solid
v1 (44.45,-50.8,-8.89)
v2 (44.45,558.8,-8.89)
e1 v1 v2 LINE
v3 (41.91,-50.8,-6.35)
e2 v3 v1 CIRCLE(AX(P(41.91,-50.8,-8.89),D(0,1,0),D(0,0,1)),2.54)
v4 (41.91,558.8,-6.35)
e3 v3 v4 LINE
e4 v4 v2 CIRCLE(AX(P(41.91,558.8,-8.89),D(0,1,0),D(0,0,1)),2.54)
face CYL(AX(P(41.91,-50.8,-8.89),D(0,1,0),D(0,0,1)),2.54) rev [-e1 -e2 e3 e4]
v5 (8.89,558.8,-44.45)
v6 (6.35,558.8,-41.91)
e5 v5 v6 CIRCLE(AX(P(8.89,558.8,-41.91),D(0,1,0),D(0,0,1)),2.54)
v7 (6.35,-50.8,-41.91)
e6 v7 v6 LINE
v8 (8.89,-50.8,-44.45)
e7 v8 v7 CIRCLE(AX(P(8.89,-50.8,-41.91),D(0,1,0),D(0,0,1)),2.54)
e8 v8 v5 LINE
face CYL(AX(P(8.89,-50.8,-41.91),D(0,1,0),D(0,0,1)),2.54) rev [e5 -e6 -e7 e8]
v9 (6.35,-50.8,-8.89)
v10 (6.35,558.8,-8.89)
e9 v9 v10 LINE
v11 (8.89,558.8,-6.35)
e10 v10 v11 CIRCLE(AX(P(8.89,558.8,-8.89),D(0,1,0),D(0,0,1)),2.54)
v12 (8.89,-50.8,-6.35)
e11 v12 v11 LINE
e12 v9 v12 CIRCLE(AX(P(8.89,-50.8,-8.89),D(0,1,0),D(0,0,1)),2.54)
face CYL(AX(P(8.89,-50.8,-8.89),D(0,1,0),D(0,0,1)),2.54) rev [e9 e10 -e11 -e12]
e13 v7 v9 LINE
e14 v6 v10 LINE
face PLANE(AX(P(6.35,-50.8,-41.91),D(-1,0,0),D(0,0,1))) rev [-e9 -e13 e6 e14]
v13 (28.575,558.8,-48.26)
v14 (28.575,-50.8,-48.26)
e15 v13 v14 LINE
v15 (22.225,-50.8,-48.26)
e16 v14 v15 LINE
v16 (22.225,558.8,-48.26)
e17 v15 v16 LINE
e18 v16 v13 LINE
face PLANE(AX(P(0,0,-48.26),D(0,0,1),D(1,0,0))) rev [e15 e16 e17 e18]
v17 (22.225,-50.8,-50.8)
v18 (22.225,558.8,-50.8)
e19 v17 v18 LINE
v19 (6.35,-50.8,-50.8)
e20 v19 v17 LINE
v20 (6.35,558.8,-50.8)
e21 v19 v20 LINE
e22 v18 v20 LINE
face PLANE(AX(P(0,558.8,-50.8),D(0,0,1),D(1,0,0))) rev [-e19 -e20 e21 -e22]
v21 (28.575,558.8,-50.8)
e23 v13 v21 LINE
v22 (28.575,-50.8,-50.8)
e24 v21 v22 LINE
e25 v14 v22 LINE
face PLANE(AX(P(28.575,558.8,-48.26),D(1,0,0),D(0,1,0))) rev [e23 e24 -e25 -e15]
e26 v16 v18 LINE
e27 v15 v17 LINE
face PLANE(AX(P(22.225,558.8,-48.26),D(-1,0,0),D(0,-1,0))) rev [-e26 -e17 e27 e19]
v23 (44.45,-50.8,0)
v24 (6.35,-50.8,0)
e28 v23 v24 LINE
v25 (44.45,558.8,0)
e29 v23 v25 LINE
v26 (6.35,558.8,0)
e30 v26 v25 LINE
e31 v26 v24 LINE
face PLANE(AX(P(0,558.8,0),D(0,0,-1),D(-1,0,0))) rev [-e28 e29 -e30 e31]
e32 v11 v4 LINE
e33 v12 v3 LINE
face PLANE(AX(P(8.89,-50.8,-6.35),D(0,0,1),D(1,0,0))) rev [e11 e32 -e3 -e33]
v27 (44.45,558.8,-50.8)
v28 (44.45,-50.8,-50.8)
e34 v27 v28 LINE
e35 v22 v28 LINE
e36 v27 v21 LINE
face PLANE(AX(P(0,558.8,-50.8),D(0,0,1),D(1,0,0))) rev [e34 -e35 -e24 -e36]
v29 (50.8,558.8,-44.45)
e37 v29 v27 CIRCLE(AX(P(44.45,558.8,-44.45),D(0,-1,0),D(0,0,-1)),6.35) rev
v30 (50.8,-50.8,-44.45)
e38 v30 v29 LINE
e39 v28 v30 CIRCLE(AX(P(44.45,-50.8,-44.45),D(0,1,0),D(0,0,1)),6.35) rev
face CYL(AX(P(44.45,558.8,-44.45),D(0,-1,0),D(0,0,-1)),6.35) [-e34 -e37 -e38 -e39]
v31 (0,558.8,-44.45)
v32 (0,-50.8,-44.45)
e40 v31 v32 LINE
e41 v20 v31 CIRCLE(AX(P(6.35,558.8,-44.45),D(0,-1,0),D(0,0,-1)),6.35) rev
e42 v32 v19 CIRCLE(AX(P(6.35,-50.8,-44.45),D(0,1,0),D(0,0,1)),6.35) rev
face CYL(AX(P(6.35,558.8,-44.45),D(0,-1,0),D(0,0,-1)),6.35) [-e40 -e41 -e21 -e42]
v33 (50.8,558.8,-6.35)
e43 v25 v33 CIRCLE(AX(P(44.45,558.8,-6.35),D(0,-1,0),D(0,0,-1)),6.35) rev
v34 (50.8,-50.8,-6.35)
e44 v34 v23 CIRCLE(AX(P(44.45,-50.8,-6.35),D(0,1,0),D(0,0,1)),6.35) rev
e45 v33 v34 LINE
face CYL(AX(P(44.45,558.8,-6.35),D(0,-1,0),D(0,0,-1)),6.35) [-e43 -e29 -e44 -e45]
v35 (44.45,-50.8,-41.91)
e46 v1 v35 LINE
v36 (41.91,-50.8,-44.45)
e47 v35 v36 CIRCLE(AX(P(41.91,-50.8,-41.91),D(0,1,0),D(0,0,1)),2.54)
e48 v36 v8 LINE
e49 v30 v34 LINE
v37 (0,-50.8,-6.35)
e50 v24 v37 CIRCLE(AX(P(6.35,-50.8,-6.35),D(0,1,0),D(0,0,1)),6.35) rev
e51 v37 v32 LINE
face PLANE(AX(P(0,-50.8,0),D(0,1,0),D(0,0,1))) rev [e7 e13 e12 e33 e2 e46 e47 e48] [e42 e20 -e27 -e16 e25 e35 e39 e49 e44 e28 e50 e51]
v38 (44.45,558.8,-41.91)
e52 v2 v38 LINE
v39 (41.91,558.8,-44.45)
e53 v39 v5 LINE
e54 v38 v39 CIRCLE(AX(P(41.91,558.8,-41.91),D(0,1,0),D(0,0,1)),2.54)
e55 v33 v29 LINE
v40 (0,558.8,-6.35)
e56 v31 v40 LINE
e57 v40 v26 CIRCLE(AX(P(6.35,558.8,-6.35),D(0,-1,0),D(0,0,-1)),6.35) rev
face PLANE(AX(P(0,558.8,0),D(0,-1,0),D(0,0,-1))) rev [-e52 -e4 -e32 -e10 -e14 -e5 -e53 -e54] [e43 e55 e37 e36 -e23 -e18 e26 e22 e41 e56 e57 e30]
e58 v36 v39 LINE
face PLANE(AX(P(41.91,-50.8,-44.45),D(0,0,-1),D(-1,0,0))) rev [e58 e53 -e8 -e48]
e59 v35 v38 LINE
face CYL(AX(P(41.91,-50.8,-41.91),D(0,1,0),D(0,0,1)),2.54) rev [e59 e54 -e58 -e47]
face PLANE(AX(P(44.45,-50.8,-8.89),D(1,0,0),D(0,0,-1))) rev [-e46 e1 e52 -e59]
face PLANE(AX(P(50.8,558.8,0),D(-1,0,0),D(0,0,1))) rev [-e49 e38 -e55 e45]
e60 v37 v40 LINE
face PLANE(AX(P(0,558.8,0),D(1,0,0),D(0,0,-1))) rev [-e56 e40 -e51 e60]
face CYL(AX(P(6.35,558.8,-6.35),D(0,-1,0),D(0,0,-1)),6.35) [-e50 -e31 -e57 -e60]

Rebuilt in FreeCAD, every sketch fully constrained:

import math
import FreeCAD as App
import Part
import Sketcher
Q = App.Units.Quantity


def edges_at(feature, points):
    """Names of the edges that pass closest to the given points."""
    edges = feature.Shape.Edges
    near = lambda p: min(range(len(edges)), key=lambda i: edges[i].distToShape(Part.Vertex(*p))[0])
    return sorted({f"Edge{near(p) + 1}" for p in points})


def add_polygon(sketch, points):
    """Adds a closed chain of lines whose ends are joined by coincident constraints."""
    first, n = sketch.GeometryCount, len(points)
    for a, b in zip(points, points[1:] + points[:1]):
        sketch.addGeometry(Part.LineSegment(App.Vector(*a, 0), App.Vector(*b, 0)), False)
    for i in range(n):
        sketch.addConstraint(Sketcher.Constraint("Coincident", first + i, 2, first + (i + 1) % n, 1))

doc = App.newDocument("Part")
body = doc.addObject("PartDesign::Body", "Body")

sketch1 = body.newObject("Sketcher::SketchObject", "Sketch")
sketch1.AttachmentSupport = (doc.getObject("XZ_Plane"), [""])
sketch1.MapMode = "FlatFace"
add_polygon(sketch1, [(0, -50.8), (0, 0), (50.8, 0), (50.8, -50.8)])
sketch1.addConstraint([
    Sketcher.Constraint("Vertical", 0),
    Sketcher.Constraint("Horizontal", 1),
    Sketcher.Constraint("Vertical", 2),
    Sketcher.Constraint("Horizontal", 3),
    Sketcher.Constraint("Coincident", 0, 2, -1, 1),
    Sketcher.Constraint("Equal", 3, 0),
    Sketcher.Constraint("DistanceX", 1, 1, 1, 2, Q("2 in")),
])
pad1 = body.newObject("PartDesign::Pad", "Pad")
pad1.Profile = sketch1
pad1.Length = Q("22 in")
pad1.Reversed = True

sketch2 = body.newObject("Sketcher::SketchObject", "Sketch001")
sketch2.AttachmentSupport = (doc.getObject("XZ_Plane"), [""])
sketch2.MapMode = "FlatFace"
add_polygon(sketch2, [(0, 0), (0, -50.8), (50.8, -50.8), (50.8, 0)])
sketch2.addConstraint([
    Sketcher.Constraint("Vertical", 0),
    Sketcher.Constraint("Horizontal", 1),
    Sketcher.Constraint("Vertical", 2),
    Sketcher.Constraint("Horizontal", 3),
    Sketcher.Constraint("Coincident", 3, 2, -1, 1),
    Sketcher.Constraint("Equal", 3, 0),
    Sketcher.Constraint("DistanceX", 1, 1, 1, 2, Q("2 in")),
])
pad2 = body.newObject("PartDesign::Pad", "Pad001")
pad2.Profile = sketch2
pad2.Length = Q("2 in")
doc.recompute()

fillet = body.newObject("PartDesign::Fillet", "Fillet")
fillet.Base = (pad2, edges_at(pad2, [
    (0, 254, -50.8),
    (50.8, 254, -50.8),
    (50.8, 254, 0),
    (0, 254, 0),
]))
fillet.Radius = Q("0.25 in")

sketch3 = body.newObject("Sketcher::SketchObject", "Sketch002")
sketch3.AttachmentSupport = (doc.getObject("XY_Plane"), [""])
sketch3.MapMode = "FlatFace"
sketch3.AttachmentOffset = App.Placement(App.Vector(0, 0, -2 * 25.4), App.Rotation())
add_polygon(sketch3, [(28.575, 558.8), (28.575, -50.8), (22.225, -50.8), (22.225, 558.8)])
sketch3.addConstraint([
    Sketcher.Constraint("Vertical", 0),
    Sketcher.Constraint("Horizontal", 1),
    Sketcher.Constraint("Vertical", 2),
    Sketcher.Constraint("Horizontal", 3),
    Sketcher.Constraint("DistanceY", 0, 2, 0, 1, Q("24 in")),
    Sketcher.Constraint("DistanceY", 0, 2, -1, 1, Q("2 in")),
    Sketcher.Constraint("DistanceX", 1, 2, 1, 1, Q("0.25 in")),
    Sketcher.Constraint("DistanceX", -1, 1, 0, 2, Q("1.125 in")),
])
pocket1 = body.newObject("PartDesign::Pocket", "Pocket")
pocket1.Profile = sketch3
pocket1.Length = Q("0.1 in")
pocket1.Reversed = True

sketch4 = body.newObject("Sketcher::SketchObject", "Sketch003")
sketch4.AttachmentSupport = (doc.getObject("XZ_Plane"), [""])
sketch4.MapMode = "FlatFace"
sketch4.AttachmentOffset = App.Placement(App.Vector(0, 0, -22 * 25.4), App.Rotation())
sketch4.addGeometry([
    Part.ArcOfCircle(Part.Circle(App.Vector(8.89, -41.91, 0), App.Vector(0, 0, 1), 2.54), math.radians(-180), math.radians(-90)),
    Part.LineSegment(App.Vector(6.35, -41.91, 0), App.Vector(6.35, -8.89, 0)),
    Part.ArcOfCircle(Part.Circle(App.Vector(8.89, -8.89, 0), App.Vector(0, 0, 1), 2.54), math.radians(90), math.radians(180)),
    Part.LineSegment(App.Vector(8.89, -6.35, 0), App.Vector(41.91, -6.35, 0)),
    Part.ArcOfCircle(Part.Circle(App.Vector(41.91, -8.89, 0), App.Vector(0, 0, 1), 2.54), math.radians(0), math.radians(90)),
    Part.LineSegment(App.Vector(44.45, -8.89, 0), App.Vector(44.45, -41.91, 0)),
    Part.ArcOfCircle(Part.Circle(App.Vector(41.91, -41.91, 0), App.Vector(0, 0, 1), 2.54), math.radians(-90), math.radians(0)),
    Part.LineSegment(App.Vector(41.91, -44.45, 0), App.Vector(8.89, -44.45, 0)),
], False)
sketch4.addConstraint([
    Sketcher.Constraint("Tangent", 0, 1, 1, 1),
    Sketcher.Constraint("Tangent", 1, 2, 2, 2),
    Sketcher.Constraint("Tangent", 2, 1, 3, 1),
    Sketcher.Constraint("Tangent", 3, 2, 4, 2),
    Sketcher.Constraint("Tangent", 4, 1, 5, 1),
    Sketcher.Constraint("Tangent", 5, 2, 6, 2),
    Sketcher.Constraint("Tangent", 6, 1, 7, 1),
    Sketcher.Constraint("Tangent", 7, 2, 0, 2),
    Sketcher.Constraint("Vertical", 1),
    Sketcher.Constraint("Horizontal", 3),
    Sketcher.Constraint("Vertical", 5),
    Sketcher.Constraint("Horizontal", 7),
    Sketcher.Constraint("Equal", 0, 2),
    Sketcher.Constraint("Equal", 2, 4),
    Sketcher.Constraint("Equal", 4, 6),
    Sketcher.Constraint("Equal", 7, 1),
    Sketcher.Constraint("Radius", 0, Q("0.1 in")),
    Sketcher.Constraint("DistanceX", 3, 1, 3, 2, Q("1.3 in")),
    Sketcher.Constraint("DistanceX", -1, 1, 0, 3, Q("0.35 in")),
    Sketcher.Constraint("DistanceY", 0, 3, -1, 1, Q("1.65 in")),
])
pocket2 = body.newObject("PartDesign::Pocket", "Pocket001")
pocket2.Profile = sketch4
pocket2.Type = "ThroughAll"
pocket2.Reversed = True

doc.recompute()
